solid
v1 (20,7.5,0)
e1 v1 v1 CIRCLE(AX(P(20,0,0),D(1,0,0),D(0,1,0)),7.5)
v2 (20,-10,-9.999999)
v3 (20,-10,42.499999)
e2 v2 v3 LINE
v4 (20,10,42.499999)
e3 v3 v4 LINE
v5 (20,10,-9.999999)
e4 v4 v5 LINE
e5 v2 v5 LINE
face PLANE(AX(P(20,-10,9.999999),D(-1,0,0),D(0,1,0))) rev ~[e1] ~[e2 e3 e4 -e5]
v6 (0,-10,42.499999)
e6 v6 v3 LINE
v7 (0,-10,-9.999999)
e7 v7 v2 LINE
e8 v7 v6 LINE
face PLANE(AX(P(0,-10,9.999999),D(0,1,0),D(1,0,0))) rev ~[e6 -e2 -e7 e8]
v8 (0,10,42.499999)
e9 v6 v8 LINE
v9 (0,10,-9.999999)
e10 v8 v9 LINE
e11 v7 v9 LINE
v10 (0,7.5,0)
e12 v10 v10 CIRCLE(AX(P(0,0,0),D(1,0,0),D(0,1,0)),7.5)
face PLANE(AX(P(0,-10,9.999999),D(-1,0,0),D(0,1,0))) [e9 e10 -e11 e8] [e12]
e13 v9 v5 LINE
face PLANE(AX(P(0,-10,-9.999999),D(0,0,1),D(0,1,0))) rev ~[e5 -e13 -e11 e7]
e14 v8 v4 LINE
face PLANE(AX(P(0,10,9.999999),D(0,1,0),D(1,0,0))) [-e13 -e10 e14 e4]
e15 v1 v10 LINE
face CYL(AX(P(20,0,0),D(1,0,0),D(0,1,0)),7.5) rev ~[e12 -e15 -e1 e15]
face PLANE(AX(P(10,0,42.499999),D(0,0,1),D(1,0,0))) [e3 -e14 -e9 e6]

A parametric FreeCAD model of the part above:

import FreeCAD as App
import Part
import Sketcher

doc = App.newDocument("Part")
body = doc.addObject("PartDesign::Body", "Body")

sketch1 = body.newObject("Sketcher::SketchObject", "Sketch")
sketch1.AttachmentSupport = (doc.getObject("YZ_Plane"), [""])
sketch1.MapMode = "FlatFace"
sketch1.addGeometry([
    Part.LineSegment(App.Vector(-10, 9.999999, 0), App.Vector(-10, -9.999999, 0)),
    Part.LineSegment(App.Vector(-10, -9.999999, 0), App.Vector(10, -9.999999, 0)),
    Part.LineSegment(App.Vector(10, -9.999999, 0), App.Vector(10, 9.999999, 0)),
    Part.LineSegment(App.Vector(10, 9.999999, 0), App.Vector(-10, 9.999999, 0)),
], False)
sketch1.addConstraint([
    Sketcher.Constraint("Coincident", 0, 2, 1, 1),
    Sketcher.Constraint("Coincident", 1, 2, 2, 1),
    Sketcher.Constraint("Coincident", 2, 2, 3, 1),
    Sketcher.Constraint("Coincident", 3, 2, 0, 1),
    Sketcher.Constraint("Vertical", 0),
    Sketcher.Constraint("Horizontal", 1),
    Sketcher.Constraint("Vertical", 2),
    Sketcher.Constraint("Horizontal", 3),
    Sketcher.Constraint("Symmetric", 0, 2, 2, 2, -1, 1),
    Sketcher.Constraint("Equal", 3, 0),
    Sketcher.Constraint("DistanceX", 1, 1, 1, 2, 20.0),
])
pad1 = body.newObject("PartDesign::Pad", "Pad")
pad1.Profile = sketch1
pad1.Length = 20

sketch2 = body.newObject("Sketcher::SketchObject", "Sketch001")
sketch2.AttachmentSupport = (doc.getObject("YZ_Plane"), [""])
sketch2.MapMode = "FlatFace"
sketch2.AttachmentOffset = App.Placement(App.Vector(0, 0, 20), App.Rotation())
sketch2.addGeometry(Part.Circle(App.Vector(0, 0, 0), App.Vector(0, 0, 1), 7.5), False)
sketch2.addConstraint([
    Sketcher.Constraint("Coincident", 0, 3, -1, 1),
    Sketcher.Constraint("Diameter", 0, 15.0),
])
pocket1 = body.newObject("PartDesign::Pocket", "Pocket")
pocket1.Profile = sketch2
pocket1.Type = "ThroughAll"

sketch3 = body.newObject("Sketcher::SketchObject", "Sketch002")
sketch3.AttachmentSupport = (doc.getObject("XY_Plane"), [""])
sketch3.MapMode = "FlatFace"
sketch3.AttachmentOffset = App.Placement(App.Vector(0, 0, 9.999999), App.Rotation())
sketch3.addGeometry([
    Part.LineSegment(App.Vector(0, 10, 0), App.Vector(0, -10, 0)),
    Part.LineSegment(App.Vector(0, -10, 0), App.Vector(20, -10, 0)),
    Part.LineSegment(App.Vector(20, -10, 0), App.Vector(20, 10, 0)),
    Part.LineSegment(App.Vector(20, 10, 0), App.Vector(0, 10, 0)),
], False)
sketch3.addConstraint([
    Sketcher.Constraint("Coincident", 0, 2, 1, 1),
    Sketcher.Constraint("Coincident", 1, 2, 2, 1),
    Sketcher.Constraint("Coincident", 2, 2, 3, 1),
    Sketcher.Constraint("Coincident", 3, 2, 0, 1),
    Sketcher.Constraint("Vertical", 0),
    Sketcher.Constraint("Horizontal", 1),
    Sketcher.Constraint("Vertical", 2),
    Sketcher.Constraint("Horizontal", 3),
    Sketcher.Constraint("Symmetric", 0, 2, 3, 2, -1, 1),
    Sketcher.Constraint("Equal", 3, 0),
    Sketcher.Constraint("DistanceX", 1, 1, 1, 2, 20.0),
])
pad2 = body.newObject("PartDesign::Pad", "Pad001")
pad2.Profile = sketch3
pad2.Length = 32.5

doc.recompute()
